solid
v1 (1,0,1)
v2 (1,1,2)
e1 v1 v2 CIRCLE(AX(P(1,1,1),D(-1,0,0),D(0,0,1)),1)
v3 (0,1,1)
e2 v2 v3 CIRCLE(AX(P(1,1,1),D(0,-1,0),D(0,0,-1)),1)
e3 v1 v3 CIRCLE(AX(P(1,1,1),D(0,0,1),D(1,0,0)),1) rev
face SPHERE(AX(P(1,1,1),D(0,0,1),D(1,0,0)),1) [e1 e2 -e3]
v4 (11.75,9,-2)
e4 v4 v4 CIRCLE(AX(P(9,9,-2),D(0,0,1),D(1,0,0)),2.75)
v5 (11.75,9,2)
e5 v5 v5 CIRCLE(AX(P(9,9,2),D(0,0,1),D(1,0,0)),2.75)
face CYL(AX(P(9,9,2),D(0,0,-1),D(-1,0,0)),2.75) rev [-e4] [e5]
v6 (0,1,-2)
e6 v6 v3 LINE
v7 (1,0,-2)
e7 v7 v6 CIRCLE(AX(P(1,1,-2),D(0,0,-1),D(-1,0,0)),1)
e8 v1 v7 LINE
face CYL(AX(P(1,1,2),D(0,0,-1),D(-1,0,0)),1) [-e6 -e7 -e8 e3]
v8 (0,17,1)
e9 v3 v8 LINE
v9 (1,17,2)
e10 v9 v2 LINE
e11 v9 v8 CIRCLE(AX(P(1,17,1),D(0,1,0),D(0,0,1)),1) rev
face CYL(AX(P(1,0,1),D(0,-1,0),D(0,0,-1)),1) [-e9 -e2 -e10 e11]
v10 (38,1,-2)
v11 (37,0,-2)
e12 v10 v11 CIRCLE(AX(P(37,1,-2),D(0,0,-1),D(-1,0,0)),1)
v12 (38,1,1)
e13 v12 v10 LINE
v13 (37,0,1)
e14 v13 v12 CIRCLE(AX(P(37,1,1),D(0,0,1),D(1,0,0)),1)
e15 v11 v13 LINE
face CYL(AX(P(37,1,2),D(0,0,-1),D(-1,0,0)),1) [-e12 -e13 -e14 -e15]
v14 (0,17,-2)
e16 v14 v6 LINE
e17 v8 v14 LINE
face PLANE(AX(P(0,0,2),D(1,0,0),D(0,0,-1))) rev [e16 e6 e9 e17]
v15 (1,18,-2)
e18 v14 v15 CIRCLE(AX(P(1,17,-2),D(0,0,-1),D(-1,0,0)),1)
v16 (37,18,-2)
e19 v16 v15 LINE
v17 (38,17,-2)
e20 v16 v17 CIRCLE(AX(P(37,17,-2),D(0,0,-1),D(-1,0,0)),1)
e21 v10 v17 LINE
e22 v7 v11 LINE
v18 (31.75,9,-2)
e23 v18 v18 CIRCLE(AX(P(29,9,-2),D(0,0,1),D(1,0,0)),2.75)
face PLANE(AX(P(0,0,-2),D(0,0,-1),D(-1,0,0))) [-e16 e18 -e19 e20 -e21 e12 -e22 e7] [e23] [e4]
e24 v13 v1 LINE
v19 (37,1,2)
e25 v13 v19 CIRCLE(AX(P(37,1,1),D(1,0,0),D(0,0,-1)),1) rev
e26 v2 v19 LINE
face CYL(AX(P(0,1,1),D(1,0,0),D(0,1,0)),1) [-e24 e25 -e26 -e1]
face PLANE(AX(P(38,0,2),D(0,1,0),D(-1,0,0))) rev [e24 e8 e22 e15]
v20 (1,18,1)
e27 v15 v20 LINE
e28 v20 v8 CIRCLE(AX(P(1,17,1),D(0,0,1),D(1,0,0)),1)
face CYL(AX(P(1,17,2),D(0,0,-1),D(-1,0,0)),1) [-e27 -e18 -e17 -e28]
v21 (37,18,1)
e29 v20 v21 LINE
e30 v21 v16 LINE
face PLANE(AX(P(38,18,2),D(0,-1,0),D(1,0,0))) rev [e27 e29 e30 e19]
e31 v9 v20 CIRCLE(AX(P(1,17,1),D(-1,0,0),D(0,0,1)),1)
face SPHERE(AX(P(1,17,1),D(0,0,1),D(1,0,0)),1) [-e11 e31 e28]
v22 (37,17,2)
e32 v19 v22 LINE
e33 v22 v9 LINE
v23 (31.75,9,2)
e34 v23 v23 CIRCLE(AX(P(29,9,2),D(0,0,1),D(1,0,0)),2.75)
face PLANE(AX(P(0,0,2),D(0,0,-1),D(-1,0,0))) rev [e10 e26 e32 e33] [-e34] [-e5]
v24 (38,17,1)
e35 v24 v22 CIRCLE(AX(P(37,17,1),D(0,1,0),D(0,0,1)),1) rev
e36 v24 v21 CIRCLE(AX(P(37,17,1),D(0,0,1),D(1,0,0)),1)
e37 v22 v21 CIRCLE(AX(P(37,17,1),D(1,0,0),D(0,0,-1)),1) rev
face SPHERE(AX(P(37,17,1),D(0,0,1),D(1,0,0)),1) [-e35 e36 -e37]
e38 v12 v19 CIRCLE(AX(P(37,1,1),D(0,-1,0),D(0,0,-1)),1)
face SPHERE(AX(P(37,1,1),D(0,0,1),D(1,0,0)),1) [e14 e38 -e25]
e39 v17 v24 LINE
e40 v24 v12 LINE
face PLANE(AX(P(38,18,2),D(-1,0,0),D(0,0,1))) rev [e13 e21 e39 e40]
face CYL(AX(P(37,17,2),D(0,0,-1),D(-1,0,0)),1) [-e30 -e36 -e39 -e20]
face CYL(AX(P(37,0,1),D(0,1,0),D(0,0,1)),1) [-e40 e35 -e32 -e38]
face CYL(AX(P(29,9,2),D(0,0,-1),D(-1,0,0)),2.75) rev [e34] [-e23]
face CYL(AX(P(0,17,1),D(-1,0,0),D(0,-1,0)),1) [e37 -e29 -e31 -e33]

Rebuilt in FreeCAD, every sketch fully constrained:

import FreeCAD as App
import Part
import Sketcher
from FreeCAD import Vector


def edges_at(feature, points):
    """Names of the edges that pass closest to the given points."""
    edges = feature.Shape.Edges
    near = lambda p: min(range(len(edges)), key=lambda i: edges[i].distToShape(Part.Vertex(*p))[0])
    return sorted({f"Edge{near(p) + 1}" for p in points})

doc = App.newDocument("Part")
body = doc.addObject("PartDesign::Body", "Body")

# Sketch on XY plane
sketch1 = body.newObject("Sketcher::SketchObject", "Sketch")
sketch1.AttachmentSupport = (doc.getObject("XY_Plane"), [""])
sketch1.MapMode = "FlatFace"
sketch1.addGeometry(Part.LineSegment(Vector(0, 18, 0), Vector(0, 0, 0)), False)
sketch1.addGeometry(Part.LineSegment(Vector(0, 0, 0), Vector(38, 0, 0)), False)
sketch1.addGeometry(Part.LineSegment(Vector(38, 0, 0), Vector(38, 18, 0)), False)
sketch1.addGeometry(Part.LineSegment(Vector(38, 18, 0), Vector(0, 18, 0)), False)
sketch1.addGeometry(Part.Circle(Vector(9, 9, 0), Vector(0, 0, 1), 2.8), False)
sketch1.addGeometry(Part.Circle(Vector(29, 9, 0), Vector(0, 0, 1), 2.8), False)
sketch1.addConstraint(Sketcher.Constraint("Coincident", 0, 2, 1, 1))
sketch1.addConstraint(Sketcher.Constraint("Coincident", 1, 2, 2, 1))
sketch1.addConstraint(Sketcher.Constraint("Coincident", 2, 2, 3, 1))
sketch1.addConstraint(Sketcher.Constraint("Coincident", 3, 2, 0, 1))
sketch1.addConstraint(Sketcher.Constraint("Vertical", 0))
sketch1.addConstraint(Sketcher.Constraint("Horizontal", 1))
sketch1.addConstraint(Sketcher.Constraint("Vertical", 2))
sketch1.addConstraint(Sketcher.Constraint("Horizontal", 3))
sketch1.addConstraint(Sketcher.Constraint("Coincident", 0, 2, -1, 1))
sketch1.addConstraint(Sketcher.Constraint("Equal", 4, 5))
sketch1.addConstraint(Sketcher.Constraint("Horizontal", 4, 3, 5, 3))
sketch1.addConstraint(Sketcher.Constraint("Diameter", 4, 5.5))
sketch1.addConstraint(Sketcher.Constraint("DistanceX", 1, 1, 1, 2, 38.0))
sketch1.addConstraint(Sketcher.Constraint("DistanceY", 0, 2, 0, 1, 18.0))
sketch1.addConstraint(Sketcher.Constraint("DistanceX", -1, 1, 4, 3, 9.0))
sketch1.addConstraint(Sketcher.Constraint("DistanceY", -1, 1, 4, 3, 9.0))
sketch1.addConstraint(Sketcher.Constraint("DistanceX", -1, 1, 5, 3, 29.0))
pad1 = body.newObject("PartDesign::Pad", "Pad")
pad1.Profile = sketch1
pad1.Length = 4
pad1.Midplane = True
doc.recompute()

fillet = body.newObject("PartDesign::Fillet", "Fillet")
fillet.Base = (pad1, edges_at(pad1, [
    (19, 18, 2),
    (0, 9, 2),
    (19, 0, 2),
    (38, 9, 2),
    (0, 0, 0),
    (0, 18, 0),
    (38, 18, 0),
    (38, 0, 0),
]))
fillet.Radius = 1

doc.recompute()
